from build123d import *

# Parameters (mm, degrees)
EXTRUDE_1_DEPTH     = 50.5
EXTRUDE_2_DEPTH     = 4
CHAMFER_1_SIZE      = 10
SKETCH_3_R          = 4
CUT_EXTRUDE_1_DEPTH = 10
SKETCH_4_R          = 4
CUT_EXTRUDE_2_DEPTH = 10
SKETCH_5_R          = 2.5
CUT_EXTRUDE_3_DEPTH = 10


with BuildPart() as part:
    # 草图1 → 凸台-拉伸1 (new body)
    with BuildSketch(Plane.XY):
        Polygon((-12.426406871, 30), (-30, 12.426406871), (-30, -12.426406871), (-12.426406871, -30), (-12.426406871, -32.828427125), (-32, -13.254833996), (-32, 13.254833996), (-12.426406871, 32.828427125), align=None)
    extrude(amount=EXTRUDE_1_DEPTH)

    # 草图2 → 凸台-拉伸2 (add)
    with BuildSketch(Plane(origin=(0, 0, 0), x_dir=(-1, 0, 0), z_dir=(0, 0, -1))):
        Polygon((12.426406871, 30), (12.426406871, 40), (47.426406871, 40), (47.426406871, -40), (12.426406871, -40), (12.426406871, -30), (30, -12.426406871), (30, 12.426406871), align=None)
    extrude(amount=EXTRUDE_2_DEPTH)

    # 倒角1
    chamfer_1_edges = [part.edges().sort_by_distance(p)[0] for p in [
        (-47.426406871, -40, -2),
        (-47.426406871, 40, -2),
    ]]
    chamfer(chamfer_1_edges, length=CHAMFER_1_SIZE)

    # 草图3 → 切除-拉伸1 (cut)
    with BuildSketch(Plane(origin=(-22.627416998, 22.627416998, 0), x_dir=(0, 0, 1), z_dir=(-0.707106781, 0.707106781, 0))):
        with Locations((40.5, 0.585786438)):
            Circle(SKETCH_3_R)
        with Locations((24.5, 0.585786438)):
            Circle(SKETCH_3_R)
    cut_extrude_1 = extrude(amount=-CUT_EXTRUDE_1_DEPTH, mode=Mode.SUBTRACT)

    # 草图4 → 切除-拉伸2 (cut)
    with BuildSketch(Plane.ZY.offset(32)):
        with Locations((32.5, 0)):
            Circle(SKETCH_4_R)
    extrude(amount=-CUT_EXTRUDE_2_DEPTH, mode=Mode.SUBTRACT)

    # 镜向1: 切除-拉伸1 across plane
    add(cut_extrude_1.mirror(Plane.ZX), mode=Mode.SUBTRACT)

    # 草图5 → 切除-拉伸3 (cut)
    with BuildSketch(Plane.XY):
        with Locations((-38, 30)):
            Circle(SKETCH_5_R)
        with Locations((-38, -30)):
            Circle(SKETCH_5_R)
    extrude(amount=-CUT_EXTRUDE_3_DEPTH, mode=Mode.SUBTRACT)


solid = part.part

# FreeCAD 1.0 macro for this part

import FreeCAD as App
import Part
import Sketcher
from FreeCAD import Vector


def edges_at(feature, points):
    """Names of the edges that pass closest to the given points."""
    edges = feature.Shape.Edges
    near = lambda p: min(range(len(edges)), key=lambda i: edges[i].distToShape(Part.Vertex(*p))[0])
    return sorted({f"Edge{near(p) + 1}" for p in points})


def add_polygon(sketch, points):
    """Adds a closed chain of lines whose ends are joined by coincident constraints."""
    first, n = sketch.GeometryCount, len(points)
    for a, b in zip(points, points[1:] + points[:1]):
        sketch.addGeometry(Part.LineSegment(App.Vector(*a, 0), App.Vector(*b, 0)), False)
    for i in range(n):
        sketch.addConstraint(Sketcher.Constraint("Coincident", first + i, 2, first + (i + 1) % n, 1))

doc = App.newDocument("Part")
params = doc.addObject("Spreadsheet::Sheet", "Params")
for row, (alias, value) in enumerate([
    ("pad1_length", "50.5 mm"),
    ("sketch2_width", "35 mm"),
    ("sketch2_height", "10 mm"),
    ("sketch2_height2", "80 mm"),
    ("pad2_length", "4 mm"),
    ("chamfer_size", "10 mm"),
    ("sketch3_diameter", "8 mm"),
    ("pocket1_length", "10 mm"),
    ("sketch4_diameter", "8 mm"),
    ("pocket2_length", "10 mm"),
    ("sketch5_diameter", "5 mm"),
    ("pocket3_length", "10 mm"),
], start=1):
    params.set(f"A{row}", alias)
    params.set(f"B{row}", "=" + value)
    params.setAlias(f"B{row}", alias)

body = doc.addObject("PartDesign::Body", "Body")

# Sketch on XY plane
sketch1 = body.newObject("Sketcher::SketchObject", "Sketch")
sketch1.AttachmentSupport = (doc.getObject("XY_Plane"), [""])
sketch1.MapMode = "FlatFace"
add_polygon(sketch1, [(-30, 12.4), (-12.4, 30), (-12.4, 32.8), (-32, 13.3), (-32, -13.3), (-12.4, -32.8), (-12.4, -30), (-30, -12.4)])  # lines 0-7
sketch1.addConstraint([
    Sketcher.Constraint("Vertical", 1),
    Sketcher.Constraint("Vertical", 3),
    Sketcher.Constraint("Vertical", 5),
    Sketcher.Constraint("Vertical", 7),
    Sketcher.Constraint("Symmetric", 1, 2, 4, 2, -1),
    Sketcher.Constraint("Parallel", 0, 2),
    Sketcher.Constraint("Perpendicular", 2, 4),
    Sketcher.Constraint("Parallel", 4, 6),
    Sketcher.Constraint("Equal", 1, 5),
    Sketcher.Constraint("Equal", 2, 4),
    Sketcher.Constraint("DistanceY", -1, 1, 0, 2, 30.0),
    Sketcher.Constraint("DistanceX", 2, 2, -1, 1, 32.0),
    Sketcher.Constraint("DistanceX", 6, 2, -1, 1, 30.0),
    Sketcher.Constraint("Distance", 2, 27.681241),
    Sketcher.Constraint("DistanceY", 1, 1, 1, 2, 2.828427),
])
pad1 = body.newObject("PartDesign::Pad", "Pad")
pad1.Profile = sketch1
pad1.setExpression("Length", "Params.pad1_length")

# Sketch on XY plane
sketch2 = body.newObject("Sketcher::SketchObject", "Sketch001")
sketch2.AttachmentSupport = (doc.getObject("XY_Plane"), [""])
sketch2.MapMode = "FlatFace"
add_polygon(sketch2, [(-12, 40), (-12, 30), (-30, 12), (-30, -12), (-12, -30), (-12, -40), (-47, -40), (-47, 40)])  # lines 0-7
sketch2.addConstraint([
    Sketcher.Constraint("Vertical", 0),
    Sketcher.Constraint("Vertical", 2),
    Sketcher.Constraint("Vertical", 4),
    Sketcher.Constraint("Horizontal", 5),
    Sketcher.Constraint("Vertical", 6),
    Sketcher.Constraint("Horizontal", 7),
    Sketcher.Constraint("Symmetric", 0, 2, 3, 2, -1),
    Sketcher.Constraint("Perpendicular", 1, 3),
    Sketcher.Constraint("Equal", 0, 4),
    Sketcher.Constraint("Equal", 1, 3),
    Sketcher.Constraint("DistanceX", 5, 2, 5, 1, 35.0),
    Sketcher.Constraint("DistanceY", 0, 2, 0, 1, 10.0),
    Sketcher.Constraint("DistanceY", 6, 1, 6, 2, 80.0),
    Sketcher.Constraint("DistanceX", 1, 2, -1, 1, 30.0),
    Sketcher.Constraint("DistanceY", 2, 2, 2, 1, 24.852814),
])
sketch2.setExpression("Constraints[18]", "Params.sketch2_width")
sketch2.setExpression("Constraints[19]", "Params.sketch2_height")
sketch2.setExpression("Constraints[20]", "Params.sketch2_height2")
pad2 = body.newObject("PartDesign::Pad", "Pad001")
pad2.Profile = sketch2
pad2.setExpression("Length", "Params.pad2_length")
pad2.Reversed = True
doc.recompute()

chamfer = body.newObject("PartDesign::Chamfer", "Chamfer")
chamfer.Base = (pad2, edges_at(pad2, [(-47.426, -40, -2), (-47.426, 40, -2)]))
chamfer.setExpression("Size", "Params.chamfer_size")

# Sketch on an angled plane
sketch3 = body.newObject("Sketcher::SketchObject", "Sketch002")
sketch3.Placement = App.Placement(Vector(-22.627417, 22.627417, 0), App.Rotation(Vector(0, 0, 1), Vector(0.707106781, 0.707106781, 0), Vector(-0.707106781, 0.707106781, 0), "ZXY"))
sketch3.addGeometry([
    Part.Circle(Vector(40.5, 0.6, 0), Vector(0, 0, 1), 4),
    Part.Circle(Vector(24.5, 0.6, 0), Vector(0, 0, 1), 4),
], False)
sketch3.addConstraint([
    Sketcher.Constraint("Equal", 0, 1),
    Sketcher.Constraint("Horizontal", 0, 3, 1, 3),
    Sketcher.Constraint("Diameter", 0, 8.0),
    Sketcher.Constraint("DistanceX", 1, 3, 0, 3, 16.0),
    Sketcher.Constraint("DistanceX", -1, 1, 0, 3, 40.5),
    Sketcher.Constraint("DistanceY", -1, 1, 0, 3, 0.585786),
])
sketch3.setExpression("Constraints[2]", "Params.sketch3_diameter")
pocket1 = body.newObject("PartDesign::Pocket", "Pocket")
pocket1.Profile = sketch3
pocket1.setExpression("Length", "Params.pocket1_length")

# Sketch on YZ plane
sketch4 = body.newObject("Sketcher::SketchObject", "Sketch003")
sketch4.AttachmentSupport = (doc.getObject("YZ_Plane"), [""])
sketch4.MapMode = "FlatFace"
sketch4.AttachmentOffset = App.Placement(Vector(0, 0, -32), App.Rotation())
sketch4.addGeometry(Part.Circle(Vector(0, 32.5, 0), Vector(0, 0, 1), 4), False)
sketch4.addConstraint([
    Sketcher.Constraint("PointOnObject", 0, 3, -2),
    Sketcher.Constraint("Diameter", 0, 8.0),
    Sketcher.Constraint("DistanceY", -1, 1, 0, 3, 32.5),
])
sketch4.setExpression("Constraints[1]", "Params.sketch4_diameter")
pocket2 = body.newObject("PartDesign::Pocket", "Pocket001")
pocket2.Profile = sketch4
pocket2.setExpression("Length", "Params.pocket2_length")
pocket2.Reversed = True
doc.recompute()

mirrored = body.newObject("PartDesign::Mirrored", "Mirrored")
mirrored.Originals = [pocket1]
mirrored.MirrorPlane = (doc.getObject("XZ_Plane"), [""])
body.Tip = mirrored

# Sketch on XY plane
sketch5 = body.newObject("Sketcher::SketchObject", "Sketch004")
sketch5.AttachmentSupport = (doc.getObject("XY_Plane"), [""])
sketch5.MapMode = "FlatFace"
sketch5.addGeometry([
    Part.Circle(Vector(-38, 30, 0), Vector(0, 0, 1), 2.5),
    Part.Circle(Vector(-38, -30, 0), Vector(0, 0, 1), 2.5),
], False)
sketch5.addConstraint([
    Sketcher.Constraint("Equal", 0, 1),
    Sketcher.Constraint("Symmetric", 0, 3, 1, 3, -1),
    Sketcher.Constraint("Diameter", 0, 5.0),
    Sketcher.Constraint("DistanceX", 0, 3, -1, 1, 38.0),
    Sketcher.Constraint("DistanceY", -1, 1, 0, 3, 30.0),
])
sketch5.setExpression("Constraints[2]", "Params.sketch5_diameter")
pocket3 = body.newObject("PartDesign::Pocket", "Pocket002")
pocket3.Profile = sketch5
pocket3.setExpression("Length", "Params.pocket3_length")

doc.recompute()
